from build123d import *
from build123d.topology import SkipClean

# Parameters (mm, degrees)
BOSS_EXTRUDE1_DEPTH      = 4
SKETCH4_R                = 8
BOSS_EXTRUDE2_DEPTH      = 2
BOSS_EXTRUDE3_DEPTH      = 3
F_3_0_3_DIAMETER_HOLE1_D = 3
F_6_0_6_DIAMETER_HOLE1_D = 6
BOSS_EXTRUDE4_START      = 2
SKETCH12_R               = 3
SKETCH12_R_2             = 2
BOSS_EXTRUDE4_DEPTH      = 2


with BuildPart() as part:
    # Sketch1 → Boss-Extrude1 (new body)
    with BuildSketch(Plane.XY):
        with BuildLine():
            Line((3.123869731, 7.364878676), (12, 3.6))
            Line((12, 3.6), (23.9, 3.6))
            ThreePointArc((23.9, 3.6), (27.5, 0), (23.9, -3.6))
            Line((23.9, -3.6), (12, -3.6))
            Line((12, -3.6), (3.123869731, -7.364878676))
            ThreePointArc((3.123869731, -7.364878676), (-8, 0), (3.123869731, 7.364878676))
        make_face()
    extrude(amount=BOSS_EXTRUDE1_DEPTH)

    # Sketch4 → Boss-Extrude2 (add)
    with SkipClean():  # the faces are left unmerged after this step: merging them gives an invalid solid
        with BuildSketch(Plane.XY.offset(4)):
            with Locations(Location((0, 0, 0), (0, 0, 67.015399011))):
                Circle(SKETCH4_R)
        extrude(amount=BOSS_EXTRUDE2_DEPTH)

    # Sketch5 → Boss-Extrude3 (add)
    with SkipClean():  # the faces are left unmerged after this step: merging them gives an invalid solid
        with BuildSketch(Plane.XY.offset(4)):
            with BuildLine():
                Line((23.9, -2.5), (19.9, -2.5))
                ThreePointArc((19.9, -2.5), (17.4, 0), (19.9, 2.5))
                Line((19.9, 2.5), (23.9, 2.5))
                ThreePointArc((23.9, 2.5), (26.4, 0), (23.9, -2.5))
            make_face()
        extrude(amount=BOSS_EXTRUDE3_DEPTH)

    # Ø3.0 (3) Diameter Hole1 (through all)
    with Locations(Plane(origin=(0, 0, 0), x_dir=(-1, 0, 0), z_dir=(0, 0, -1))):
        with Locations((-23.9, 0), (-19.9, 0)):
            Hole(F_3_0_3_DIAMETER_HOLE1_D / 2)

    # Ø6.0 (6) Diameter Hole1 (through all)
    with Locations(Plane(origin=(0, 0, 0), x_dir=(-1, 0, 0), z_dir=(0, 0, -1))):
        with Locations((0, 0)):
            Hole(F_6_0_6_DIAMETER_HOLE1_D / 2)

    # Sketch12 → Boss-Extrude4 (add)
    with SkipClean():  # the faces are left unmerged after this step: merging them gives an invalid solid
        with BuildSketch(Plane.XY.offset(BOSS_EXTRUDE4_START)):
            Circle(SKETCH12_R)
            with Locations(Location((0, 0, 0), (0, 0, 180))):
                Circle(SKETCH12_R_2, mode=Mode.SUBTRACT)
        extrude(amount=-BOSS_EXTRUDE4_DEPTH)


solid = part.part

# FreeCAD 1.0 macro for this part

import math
import FreeCAD as App
import Part
import Sketcher

V = App.Vector

doc = App.newDocument("Part")
body = doc.addObject("PartDesign::Body", "Body")

# Sketch on XY plane
sketch1 = body.newObject("Sketcher::SketchObject", "Sketch")
sketch1.AttachmentSupport = (doc.getObject("XY_Plane"), [""])
sketch1.MapMode = "FlatFace"
sketch1.addGeometry(Part.LineSegment(V(12, 3.6, 0), V(3.1, 7.4, 0)), False)
sketch1.addGeometry(Part.ArcOfCircle(Part.Circle(V(0, 0, 0), V(0, 0, 1), 8), math.radians(67), math.radians(293)), False)
sketch1.addGeometry(Part.LineSegment(V(3.1, -7.4, 0), V(12, -3.6, 0)), False)
sketch1.addGeometry(Part.LineSegment(V(12, -3.6, 0), V(23.9, -3.6, 0)), False)
sketch1.addGeometry(Part.ArcOfCircle(Part.Circle(V(23.9, 0, 0), V(0, 0, 1), 3.6), math.radians(-90), math.radians(90)), False)
sketch1.addGeometry(Part.LineSegment(V(23.9, 3.6, 0), V(12, 3.6, 0)), False)
sketch1.addConstraint(Sketcher.Constraint("Tangent", 0, 2, 1, 1))
sketch1.addConstraint(Sketcher.Constraint("Tangent", 1, 2, 2, 1))
sketch1.addConstraint(Sketcher.Constraint("Coincident", 2, 2, 3, 1))
sketch1.addConstraint(Sketcher.Constraint("Tangent", 3, 2, 4, 1))
sketch1.addConstraint(Sketcher.Constraint("Tangent", 4, 2, 5, 1))
sketch1.addConstraint(Sketcher.Constraint("Coincident", 5, 2, 0, 1))
sketch1.addConstraint(Sketcher.Constraint("Horizontal", 3))
sketch1.addConstraint(Sketcher.Constraint("Horizontal", 5))
sketch1.addConstraint(Sketcher.Constraint("Coincident", 1, 3, -1, 1))
sketch1.addConstraint(Sketcher.Constraint("Symmetric", 2, 2, 5, 2, -1))
sketch1.addConstraint(Sketcher.Constraint("Radius", 1, 8.0))
sketch1.addConstraint(Sketcher.Constraint("Radius", 4, 3.6))
sketch1.addConstraint(Sketcher.Constraint("DistanceX", 3, 1, 3, 2, 11.9))
sketch1.addConstraint(Sketcher.Constraint("DistanceX", -1, 1, 2, 2, 12.0))
pad1 = body.newObject("PartDesign::Pad", "Pad")
pad1.Profile = sketch1
pad1.Length = 4

# Sketch on XY plane
sketch2 = body.newObject("Sketcher::SketchObject", "Sketch001")
sketch2.AttachmentSupport = (doc.getObject("XY_Plane"), [""])
sketch2.MapMode = "FlatFace"
sketch2.AttachmentOffset = App.Placement(V(0, 0, 4), App.Rotation())
sketch2.addGeometry(Part.Circle(V(0, 0, 0), V(0, 0, 1), 8), False)
sketch2.addConstraint(Sketcher.Constraint("Coincident", 0, 3, -1, 1))
sketch2.addConstraint(Sketcher.Constraint("Diameter", 0, 16.0))
pad2 = body.newObject("PartDesign::Pad", "Pad001")
pad2.Profile = sketch2
pad2.Length = 2

# Sketch on XY plane
sketch3 = body.newObject("Sketcher::SketchObject", "Sketch002")
sketch3.AttachmentSupport = (doc.getObject("XY_Plane"), [""])
sketch3.MapMode = "FlatFace"
sketch3.AttachmentOffset = App.Placement(V(0, 0, 4), App.Rotation())
sketch3.addGeometry(Part.LineSegment(V(19.9, -2.5, 0), V(23.9, -2.5, 0)), False)
sketch3.addGeometry(Part.ArcOfCircle(Part.Circle(V(23.9, 0, 0), V(0, 0, 1), 2.5), math.radians(-90), math.radians(90)), False)
sketch3.addGeometry(Part.LineSegment(V(23.9, 2.5, 0), V(19.9, 2.5, 0)), False)
sketch3.addGeometry(Part.ArcOfCircle(Part.Circle(V(19.9, 0, 0), V(0, 0, 1), 2.5), math.radians(90), math.radians(270)), False)
sketch3.addConstraint(Sketcher.Constraint("Tangent", 0, 2, 1, 1))
sketch3.addConstraint(Sketcher.Constraint("Tangent", 1, 2, 2, 1))
sketch3.addConstraint(Sketcher.Constraint("Tangent", 2, 2, 3, 1))
sketch3.addConstraint(Sketcher.Constraint("Tangent", 3, 2, 0, 1))
sketch3.addConstraint(Sketcher.Constraint("Horizontal", 0))
sketch3.addConstraint(Sketcher.Constraint("Horizontal", 2))
sketch3.addConstraint(Sketcher.Constraint("PointOnObject", 1, 3, -1))
sketch3.addConstraint(Sketcher.Constraint("Radius", 1, 2.5))
sketch3.addConstraint(Sketcher.Constraint("DistanceX", 0, 1, 0, 2, 4.0))
sketch3.addConstraint(Sketcher.Constraint("DistanceX", -1, 1, 1, 3, 23.9))
pad3 = body.newObject("PartDesign::Pad", "Pad002")
pad3.Profile = sketch3
pad3.Length = 3

# Sketch on XY plane
sketch4 = body.newObject("Sketcher::SketchObject", "Sketch003")
sketch4.AttachmentSupport = (doc.getObject("XY_Plane"), [""])
sketch4.MapMode = "FlatFace"
sketch4.addGeometry(Part.Circle(V(23.9, 0, 0), V(0, 0, 1), 1.5), False)
sketch4.addGeometry(Part.Circle(V(19.9, 0, 0), V(0, 0, 1), 1.5), False)
sketch4.addConstraint(Sketcher.Constraint("Equal", 0, 1))
sketch4.addConstraint(Sketcher.Constraint("PointOnObject", 0, 3, -1))
sketch4.addConstraint(Sketcher.Constraint("PointOnObject", 1, 3, -1))
sketch4.addConstraint(Sketcher.Constraint("Diameter", 0, 3.0))
sketch4.addConstraint(Sketcher.Constraint("DistanceX", 1, 3, 0, 3, 4.0))
sketch4.addConstraint(Sketcher.Constraint("DistanceX", -1, 1, 0, 3, 23.9))
doc.recompute()
hole = body.newObject("PartDesign::Hole", "Hole")
hole.Profile = sketch4
hole.ThreadType = "None"
hole.Diameter = 3
hole.DepthType = "ThroughAll"
hole.Reversed = True

# Sketch on XY plane
sketch5 = body.newObject("Sketcher::SketchObject", "Sketch004")
sketch5.AttachmentSupport = (doc.getObject("XY_Plane"), [""])
sketch5.MapMode = "FlatFace"
sketch5.addGeometry(Part.Circle(V(0, 0, 0), V(0, 0, 1), 3), False)
sketch5.addConstraint(Sketcher.Constraint("Coincident", 0, 3, -1, 1))
sketch5.addConstraint(Sketcher.Constraint("Diameter", 0, 6.0))
doc.recompute()
hole2 = body.newObject("PartDesign::Hole", "Hole001")
hole2.Profile = sketch5
hole2.ThreadType = "None"
hole2.Diameter = 6
hole2.DepthType = "ThroughAll"
hole2.Reversed = True

# Sketch on XY plane
sketch6 = body.newObject("Sketcher::SketchObject", "Sketch005")
sketch6.AttachmentSupport = (doc.getObject("XY_Plane"), [""])
sketch6.MapMode = "FlatFace"
sketch6.AttachmentOffset = App.Placement(V(0, 0, 2), App.Rotation())
sketch6.addGeometry(Part.Circle(V(0, 0, 0), V(0, 0, 1), 3), False)
sketch6.addGeometry(Part.Circle(V(0, 0, 0), V(0, 0, 1), 2), False)
sketch6.addConstraint(Sketcher.Constraint("Coincident", 0, 3, -1, 1))
sketch6.addConstraint(Sketcher.Constraint("Coincident", 1, 3, -1, 1))
sketch6.addConstraint(Sketcher.Constraint("Diameter", 0, 6.0))
sketch6.addConstraint(Sketcher.Constraint("Diameter", 1, 4.0))
pad4 = body.newObject("PartDesign::Pad", "Pad003")
pad4.Profile = sketch6
pad4.Length = 2
pad4.Reversed = True

doc.recompute()
